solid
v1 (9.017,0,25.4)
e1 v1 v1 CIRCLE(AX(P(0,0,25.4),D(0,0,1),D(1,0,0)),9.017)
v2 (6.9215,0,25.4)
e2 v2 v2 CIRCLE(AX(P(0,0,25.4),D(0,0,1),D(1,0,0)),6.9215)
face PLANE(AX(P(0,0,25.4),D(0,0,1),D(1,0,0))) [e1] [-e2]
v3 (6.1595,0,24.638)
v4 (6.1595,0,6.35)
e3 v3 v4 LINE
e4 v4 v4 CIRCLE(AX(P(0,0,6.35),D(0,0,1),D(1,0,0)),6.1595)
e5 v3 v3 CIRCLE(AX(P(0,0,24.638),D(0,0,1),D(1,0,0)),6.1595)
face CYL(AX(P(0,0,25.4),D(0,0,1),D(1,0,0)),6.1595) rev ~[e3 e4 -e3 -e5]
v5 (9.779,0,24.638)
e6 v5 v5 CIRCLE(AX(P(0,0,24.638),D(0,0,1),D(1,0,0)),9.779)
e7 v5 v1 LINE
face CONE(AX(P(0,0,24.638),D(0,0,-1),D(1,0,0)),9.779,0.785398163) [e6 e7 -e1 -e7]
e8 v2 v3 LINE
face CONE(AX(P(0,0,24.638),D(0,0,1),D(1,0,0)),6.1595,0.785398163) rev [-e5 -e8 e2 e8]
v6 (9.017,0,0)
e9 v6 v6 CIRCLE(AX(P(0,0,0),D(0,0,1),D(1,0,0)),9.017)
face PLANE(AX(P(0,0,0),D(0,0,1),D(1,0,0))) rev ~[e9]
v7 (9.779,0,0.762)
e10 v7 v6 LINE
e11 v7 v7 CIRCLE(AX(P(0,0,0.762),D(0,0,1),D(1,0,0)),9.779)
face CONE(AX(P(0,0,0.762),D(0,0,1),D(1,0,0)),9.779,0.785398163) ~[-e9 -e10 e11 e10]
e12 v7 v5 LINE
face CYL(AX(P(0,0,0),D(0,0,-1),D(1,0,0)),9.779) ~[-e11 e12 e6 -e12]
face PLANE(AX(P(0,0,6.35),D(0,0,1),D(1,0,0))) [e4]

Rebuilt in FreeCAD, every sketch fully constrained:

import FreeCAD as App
import Part
import Sketcher

V = App.Vector
Q = App.Units.Quantity


def edges_at(feature, points):
    """Names of the edges that pass closest to the given points."""
    edges = feature.Shape.Edges
    near = lambda p: min(range(len(edges)), key=lambda i: edges[i].distToShape(Part.Vertex(*p))[0])
    return sorted({f"Edge{near(p) + 1}" for p in points})

doc = App.newDocument("Part")
body = doc.addObject("PartDesign::Body", "Body")

# Sketch on XY plane
sketch1 = doc.addObject("Sketcher::SketchObject", "Sketch")
body.addObject(sketch1)
sketch1.AttachmentSupport = (doc.XY_Plane, [""])
sketch1.MapMode = "FlatFace"
sketch1.addGeometry(Part.Circle(V(0, 0, 0), V(0, 0, 1), 9.779), False)
sketch1.addConstraint(Sketcher.Constraint("Coincident", 0, 3, -1, 1))
sketch1.addConstraint(Sketcher.Constraint("Diameter", 0, Q("0.77 in")))
pad1 = doc.addObject("PartDesign::Pad", "Pad")
body.addObject(pad1)
pad1.Profile = sketch1
pad1.Length = Q("1 in")
doc.recompute()

chamfer = doc.addObject("PartDesign::Chamfer", "Chamfer")
body.addObject(chamfer)
chamfer.Base = (pad1, edges_at(pad1, [(-9.779, 0, 0)]))
chamfer.Size = Q("0.03 in")

# Sketch on XY plane
sketch2 = doc.addObject("Sketcher::SketchObject", "Sketch001")
body.addObject(sketch2)
sketch2.AttachmentSupport = (doc.XY_Plane, [""])
sketch2.MapMode = "FlatFace"
sketch2.AttachmentOffset = App.Placement(V(0, 0, 1 * 25.4), App.Rotation())
sketch2.addGeometry(Part.Circle(V(0, 0, 0), V(0, 0, 1), 6.1595), False)
sketch2.addConstraint(Sketcher.Constraint("Coincident", 0, 3, -1, 1))
sketch2.addConstraint(Sketcher.Constraint("Diameter", 0, Q("0.485 in")))
pocket1 = doc.addObject("PartDesign::Pocket", "Pocket")
body.addObject(pocket1)
pocket1.Profile = sketch2
pocket1.Length = Q("0.75 in")
doc.recompute()

chamfer2 = doc.addObject("PartDesign::Chamfer", "Chamfer001")
body.addObject(chamfer2)
chamfer2.Base = (pocket1, edges_at(pocket1, [(-9.779, 0, 25.4), (-6.16, 0, 25.4)]))
chamfer2.Size = Q("0.03 in")

doc.recompute()
